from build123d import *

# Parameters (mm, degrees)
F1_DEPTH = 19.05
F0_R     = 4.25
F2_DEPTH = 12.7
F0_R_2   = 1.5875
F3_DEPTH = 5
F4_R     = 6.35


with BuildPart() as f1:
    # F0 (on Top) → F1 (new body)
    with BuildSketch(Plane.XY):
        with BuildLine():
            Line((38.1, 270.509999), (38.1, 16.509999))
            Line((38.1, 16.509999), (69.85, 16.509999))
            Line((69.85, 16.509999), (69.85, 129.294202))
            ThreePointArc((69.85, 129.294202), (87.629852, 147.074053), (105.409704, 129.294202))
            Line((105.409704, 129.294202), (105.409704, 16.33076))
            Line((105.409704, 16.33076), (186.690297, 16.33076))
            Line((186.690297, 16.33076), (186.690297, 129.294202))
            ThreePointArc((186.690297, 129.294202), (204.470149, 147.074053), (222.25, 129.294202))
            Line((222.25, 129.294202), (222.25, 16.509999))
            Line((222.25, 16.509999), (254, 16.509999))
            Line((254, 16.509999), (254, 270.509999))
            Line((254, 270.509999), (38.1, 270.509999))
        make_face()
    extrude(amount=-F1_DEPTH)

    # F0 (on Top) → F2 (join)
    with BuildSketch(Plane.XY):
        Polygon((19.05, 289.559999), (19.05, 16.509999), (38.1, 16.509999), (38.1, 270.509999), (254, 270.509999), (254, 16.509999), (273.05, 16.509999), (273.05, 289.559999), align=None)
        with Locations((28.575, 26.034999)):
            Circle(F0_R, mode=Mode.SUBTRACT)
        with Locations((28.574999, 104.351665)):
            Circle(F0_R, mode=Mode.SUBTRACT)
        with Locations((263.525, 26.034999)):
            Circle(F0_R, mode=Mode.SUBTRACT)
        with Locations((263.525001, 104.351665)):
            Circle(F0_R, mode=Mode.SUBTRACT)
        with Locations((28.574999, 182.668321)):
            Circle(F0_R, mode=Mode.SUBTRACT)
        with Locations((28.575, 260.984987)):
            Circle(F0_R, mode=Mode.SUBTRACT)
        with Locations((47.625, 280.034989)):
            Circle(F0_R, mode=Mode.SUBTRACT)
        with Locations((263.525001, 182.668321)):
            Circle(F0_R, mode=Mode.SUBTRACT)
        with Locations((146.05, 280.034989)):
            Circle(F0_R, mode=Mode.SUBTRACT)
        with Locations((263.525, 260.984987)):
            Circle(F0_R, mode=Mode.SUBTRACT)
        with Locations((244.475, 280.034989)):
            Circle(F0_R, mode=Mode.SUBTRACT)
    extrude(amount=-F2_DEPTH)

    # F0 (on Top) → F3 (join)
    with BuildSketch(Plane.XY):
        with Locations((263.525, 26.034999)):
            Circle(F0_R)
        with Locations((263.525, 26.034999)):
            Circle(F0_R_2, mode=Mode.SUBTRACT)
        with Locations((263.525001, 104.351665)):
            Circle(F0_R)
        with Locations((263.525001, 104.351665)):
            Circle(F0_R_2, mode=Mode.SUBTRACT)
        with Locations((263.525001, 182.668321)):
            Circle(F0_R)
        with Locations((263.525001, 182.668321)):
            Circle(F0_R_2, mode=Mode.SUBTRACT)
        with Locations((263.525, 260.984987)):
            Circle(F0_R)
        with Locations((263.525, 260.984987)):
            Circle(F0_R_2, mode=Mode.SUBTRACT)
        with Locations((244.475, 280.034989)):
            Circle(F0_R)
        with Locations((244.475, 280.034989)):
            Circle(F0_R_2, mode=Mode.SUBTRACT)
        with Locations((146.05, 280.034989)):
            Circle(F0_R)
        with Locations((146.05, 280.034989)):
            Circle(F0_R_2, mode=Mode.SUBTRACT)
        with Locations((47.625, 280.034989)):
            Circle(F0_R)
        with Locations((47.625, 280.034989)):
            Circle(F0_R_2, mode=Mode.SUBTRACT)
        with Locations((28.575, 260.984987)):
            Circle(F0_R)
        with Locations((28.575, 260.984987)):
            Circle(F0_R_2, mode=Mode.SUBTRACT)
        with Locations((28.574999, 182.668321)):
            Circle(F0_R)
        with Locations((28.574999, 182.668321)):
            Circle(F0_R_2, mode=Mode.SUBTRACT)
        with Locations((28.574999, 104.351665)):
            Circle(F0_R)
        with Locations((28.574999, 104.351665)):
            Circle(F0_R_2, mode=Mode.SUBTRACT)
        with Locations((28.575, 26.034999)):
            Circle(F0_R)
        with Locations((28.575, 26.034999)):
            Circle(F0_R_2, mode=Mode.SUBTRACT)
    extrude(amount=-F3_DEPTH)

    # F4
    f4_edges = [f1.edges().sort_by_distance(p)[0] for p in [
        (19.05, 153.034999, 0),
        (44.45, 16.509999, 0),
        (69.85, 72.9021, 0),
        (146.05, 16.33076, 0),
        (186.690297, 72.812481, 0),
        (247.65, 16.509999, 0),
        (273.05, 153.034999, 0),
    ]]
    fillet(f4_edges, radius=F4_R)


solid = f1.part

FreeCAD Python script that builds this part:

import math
import FreeCAD as App
import Part
import Sketcher

V = App.Vector
Q = App.Units.Quantity


def edges_at(feature, points):
    """Names of the edges that pass closest to the given points."""
    edges = feature.Shape.Edges
    near = lambda p: min(range(len(edges)), key=lambda i: edges[i].distToShape(Part.Vertex(*p))[0])
    return sorted({f"Edge{near(p) + 1}" for p in points})

doc = App.newDocument("Part")
body = doc.addObject("PartDesign::Body", "Body")

sketch1 = doc.addObject("Sketcher::SketchObject", "Sketch")
body.addObject(sketch1)
sketch1.AttachmentSupport = (doc.XY_Plane, [""])
sketch1.MapMode = "FlatFace"
sketch1.addGeometry([
    Part.LineSegment(V(38, 271, 0), V(38, 17, 0)),
    Part.LineSegment(V(38, 17, 0), V(70, 17, 0)),
    Part.LineSegment(V(70, 17, 0), V(70, 129, 0)),
    Part.ArcOfCircle(Part.Circle(V(88, 129, 0), V(0, 0, 1), 18), math.radians(0), math.radians(180)),
    Part.LineSegment(V(105, 129, 0), V(105, 16, 0)),
    Part.LineSegment(V(105, 16, 0), V(187, 16, 0)),
    Part.LineSegment(V(187, 16, 0), V(187, 129, 0)),
    Part.ArcOfCircle(Part.Circle(V(204, 129, 0), V(0, 0, 1), 18), math.radians(0), math.radians(180)),
    Part.LineSegment(V(222, 129, 0), V(222, 17, 0)),
    Part.LineSegment(V(222, 17, 0), V(254, 17, 0)),
    Part.LineSegment(V(254, 17, 0), V(254, 271, 0)),
    Part.LineSegment(V(254, 271, 0), V(38, 271, 0)),
], False)
sketch1.addConstraint([
    Sketcher.Constraint("Coincident", 0, 2, 1, 1),
    Sketcher.Constraint("Coincident", 1, 2, 2, 1),
    Sketcher.Constraint("Tangent", 2, 2, 3, 2),
    Sketcher.Constraint("Tangent", 3, 1, 4, 1),
    Sketcher.Constraint("Coincident", 4, 2, 5, 1),
    Sketcher.Constraint("Coincident", 5, 2, 6, 1),
    Sketcher.Constraint("Tangent", 6, 2, 7, 2),
    Sketcher.Constraint("Tangent", 7, 1, 8, 1),
    Sketcher.Constraint("Coincident", 8, 2, 9, 1),
    Sketcher.Constraint("Coincident", 9, 2, 10, 1),
    Sketcher.Constraint("Coincident", 10, 2, 11, 1),
    Sketcher.Constraint("Coincident", 11, 2, 0, 1),
    Sketcher.Constraint("Vertical", 0),
    Sketcher.Constraint("Horizontal", 1),
    Sketcher.Constraint("Vertical", 2),
    Sketcher.Constraint("Vertical", 4),
    Sketcher.Constraint("Horizontal", 5),
    Sketcher.Constraint("Vertical", 6),
    Sketcher.Constraint("Vertical", 8),
    Sketcher.Constraint("Horizontal", 9),
    Sketcher.Constraint("Vertical", 10),
    Sketcher.Constraint("Horizontal", 11),
    Sketcher.Constraint("Equal", 3, 7),
    Sketcher.Constraint("Horizontal", 3, 3, 7, 3),
    Sketcher.Constraint("Horizontal", 1, 2, 8, 2),
    Sketcher.Constraint("Equal", 1, 9),
    Sketcher.Constraint("DistanceY", 0, 2, 0, 1, Q("10 in")),
    Sketcher.Constraint("DistanceX", 11, 2, 11, 1, Q("8.5 in")),
    Sketcher.Constraint("DistanceX", -1, 1, 9, 2, Q("10 in")),
    Sketcher.Constraint("DistanceX", 1, 1, 1, 2, Q("1.25 in")),
    Sketcher.Constraint("DistanceY", -1, 1, 0, 2, Q("0.65 in")),
    Sketcher.Constraint("Radius", 7, 17.779851),
    Sketcher.Constraint("DistanceY", -1, 1, 3, 3, 129.294201),
    Sketcher.Constraint("DistanceY", 4, 2, 4, 1, 112.963442),
])
pad1 = doc.addObject("PartDesign::Pad", "Pad")
body.addObject(pad1)
pad1.Profile = sketch1
pad1.Length = Q("0.75 in")
pad1.Reversed = True

sketch2 = doc.addObject("Sketcher::SketchObject", "Sketch001")
body.addObject(sketch2)
sketch2.AttachmentSupport = (doc.XY_Plane, [""])
sketch2.MapMode = "FlatFace"
sketch2.addGeometry([
    Part.LineSegment(V(19.1, 289.6, 0), V(19.1, 16.5, 0)),
    Part.LineSegment(V(19.1, 16.5, 0), V(38.1, 16.5, 0)),
    Part.LineSegment(V(38.1, 16.5, 0), V(38.1, 270.5, 0)),
    Part.LineSegment(V(38.1, 270.5, 0), V(254, 270.5, 0)),
    Part.LineSegment(V(254, 270.5, 0), V(254, 16.5, 0)),
    Part.LineSegment(V(254, 16.5, 0), V(273.1, 16.5, 0)),
    Part.LineSegment(V(273.1, 16.5, 0), V(273.1, 289.6, 0)),
    Part.LineSegment(V(273.1, 289.6, 0), V(19.1, 289.6, 0)),
    Part.Circle(V(28.6, 26, 0), V(0, 0, 1), 4.2),
    Part.Circle(V(28.6, 104.4, 0), V(0, 0, 1), 4.2),
    Part.Circle(V(263.5, 26, 0), V(0, 0, 1), 4.2),
    Part.Circle(V(263.5, 104.4, 0), V(0, 0, 1), 4.2),
    Part.Circle(V(28.6, 182.7, 0), V(0, 0, 1), 4.2),
    Part.Circle(V(28.6, 261, 0), V(0, 0, 1), 4.2),
    Part.Circle(V(47.6, 280, 0), V(0, 0, 1), 4.2),
    Part.Circle(V(263.5, 182.7, 0), V(0, 0, 1), 4.2),
    Part.Circle(V(146.1, 280, 0), V(0, 0, 1), 4.2),
    Part.Circle(V(263.5, 261, 0), V(0, 0, 1), 4.2),
    Part.Circle(V(244.5, 280, 0), V(0, 0, 1), 4.2),
], False)
sketch2.addConstraint([
    Sketcher.Constraint("Coincident", 0, 2, 1, 1),
    Sketcher.Constraint("Coincident", 1, 2, 2, 1),
    Sketcher.Constraint("Coincident", 2, 2, 3, 1),
    Sketcher.Constraint("Coincident", 3, 2, 4, 1),
    Sketcher.Constraint("Coincident", 4, 2, 5, 1),
    Sketcher.Constraint("Coincident", 5, 2, 6, 1),
    Sketcher.Constraint("Coincident", 6, 2, 7, 1),
    Sketcher.Constraint("Coincident", 7, 2, 0, 1),
    Sketcher.Constraint("Vertical", 0),
    Sketcher.Constraint("Horizontal", 1),
    Sketcher.Constraint("Vertical", 2),
    Sketcher.Constraint("Horizontal", 3),
    Sketcher.Constraint("Vertical", 4),
    Sketcher.Constraint("Horizontal", 5),
    Sketcher.Constraint("Vertical", 6),
    Sketcher.Constraint("Horizontal", 7),
    Sketcher.Constraint("Equal", 8, 9),
    Sketcher.Constraint("Equal", 9, 10),
    Sketcher.Constraint("Equal", 10, 11),
    Sketcher.Constraint("Equal", 11, 12),
    Sketcher.Constraint("Equal", 12, 13),
    Sketcher.Constraint("Equal", 13, 14),
    Sketcher.Constraint("Equal", 14, 15),
    Sketcher.Constraint("Equal", 15, 16),
    Sketcher.Constraint("Equal", 16, 17),
    Sketcher.Constraint("Equal", 17, 18),
    Sketcher.Constraint("Horizontal", 8, 3, 10, 3),
    Sketcher.Constraint("Horizontal", 9, 3, 11, 3),
    Sketcher.Constraint("Horizontal", 12, 3, 15, 3),
    Sketcher.Constraint("Horizontal", 14, 3, 16, 3),
    Sketcher.Constraint("Horizontal", 13, 3, 17, 3),
    Sketcher.Constraint("Horizontal", 16, 3, 18, 3),
    Sketcher.Constraint("Horizontal", 1, 2, 4, 2),
    Sketcher.Constraint("Vertical", 8, 3, 9, 3),
    Sketcher.Constraint("Vertical", 10, 3, 11, 3),
    Sketcher.Constraint("Vertical", 9, 3, 12, 3),
    Sketcher.Constraint("Vertical", 12, 3, 13, 3),
    Sketcher.Constraint("Vertical", 11, 3, 15, 3),
    Sketcher.Constraint("Vertical", 15, 3, 17, 3),
    Sketcher.Constraint("Equal", 1, 5),
    Sketcher.Constraint("Equal", 7, 2),
    Sketcher.Constraint("DistanceX", 7, 2, 7, 1, Q("10 in")),
    Sketcher.Constraint("DistanceX", 3, 1, 3, 2, Q("8.5 in")),
    Sketcher.Constraint("DistanceX", -1, 1, 3, 2, Q("10 in")),
    Sketcher.Constraint("DistanceX", 16, 3, 6, 2, Q("5 in")),
    Sketcher.Constraint("DistanceY", 0, 2, 0, 1, Q("10.75 in")),
    Sketcher.Constraint("DistanceY", -1, 1, 6, 2, Q("11.4 in")),
    Sketcher.Constraint("DistanceX", 14, 3, 11, 3, Q("8.5 in")),
    Sketcher.Constraint("Diameter", 8, 8.5),
    Sketcher.Constraint("DistanceX", 8, 3, 10, 3, Q("9.25 in")),
    Sketcher.Constraint("DistanceY", 13, 3, 14, 3, Q("0.7500001 in")),
    Sketcher.Constraint("DistanceX", 18, 3, 17, 3, Q("0.75 in")),
    Sketcher.Constraint("DistanceX", -1, 1, 8, 3, Q("1.125 in")),
    Sketcher.Constraint("DistanceY", -1, 1, 8, 3, Q("1.025 in")),
    Sketcher.Constraint("DistanceY", -1, 1, 12, 3, 182.668321),
    Sketcher.Constraint("DistanceY", -1, 1, 14, 3, 280.034989),
    Sketcher.Constraint("DistanceY", 9, 3, 13, 3, 156.633322),
])
pad2 = doc.addObject("PartDesign::Pad", "Pad001")
body.addObject(pad2)
pad2.Profile = sketch2
pad2.Length = Q("0.5 in")
pad2.Reversed = True

sketch3 = doc.addObject("Sketcher::SketchObject", "Sketch002")
body.addObject(sketch3)
sketch3.AttachmentSupport = (doc.XY_Plane, [""])
sketch3.MapMode = "FlatFace"
sketch3.addGeometry([
    Part.Circle(V(263.5, 26, 0), V(0, 0, 1), 4.2),
    Part.Circle(V(263.5, 26, 0), V(0, 0, 1), 1.6),
    Part.Circle(V(263.5, 104.4, 0), V(0, 0, 1), 4.2),
    Part.Circle(V(263.5, 104.4, 0), V(0, 0, 1), 1.6),
    Part.Circle(V(263.5, 182.7, 0), V(0, 0, 1), 4.2),
    Part.Circle(V(263.5, 182.7, 0), V(0, 0, 1), 1.6),
    Part.Circle(V(263.5, 261, 0), V(0, 0, 1), 4.2),
    Part.Circle(V(263.5, 261, 0), V(0, 0, 1), 1.6),
    Part.Circle(V(244.5, 280, 0), V(0, 0, 1), 4.2),
    Part.Circle(V(244.5, 280, 0), V(0, 0, 1), 1.6),
    Part.Circle(V(146.1, 280, 0), V(0, 0, 1), 4.2),
    Part.Circle(V(146.1, 280, 0), V(0, 0, 1), 1.6),
    Part.Circle(V(47.6, 280, 0), V(0, 0, 1), 4.2),
    Part.Circle(V(47.6, 280, 0), V(0, 0, 1), 1.6),
    Part.Circle(V(28.6, 261, 0), V(0, 0, 1), 4.2),
    Part.Circle(V(28.6, 261, 0), V(0, 0, 1), 1.6),
    Part.Circle(V(28.6, 182.7, 0), V(0, 0, 1), 4.2),
    Part.Circle(V(28.6, 182.7, 0), V(0, 0, 1), 1.6),
    Part.Circle(V(28.6, 104.4, 0), V(0, 0, 1), 4.2),
    Part.Circle(V(28.6, 104.4, 0), V(0, 0, 1), 1.6),
    Part.Circle(V(28.6, 26, 0), V(0, 0, 1), 4.2),
    Part.Circle(V(28.6, 26, 0), V(0, 0, 1), 1.6),
], False)
sketch3.addConstraint([
    Sketcher.Constraint("Coincident", 1, 3, 0, 3),
    Sketcher.Constraint("Coincident", 3, 3, 2, 3),
    Sketcher.Constraint("Coincident", 5, 3, 4, 3),
    Sketcher.Constraint("Coincident", 7, 3, 6, 3),
    Sketcher.Constraint("Coincident", 9, 3, 8, 3),
    Sketcher.Constraint("Coincident", 11, 3, 10, 3),
    Sketcher.Constraint("Coincident", 13, 3, 12, 3),
    Sketcher.Constraint("Coincident", 15, 3, 14, 3),
    Sketcher.Constraint("Coincident", 17, 3, 16, 3),
    Sketcher.Constraint("Coincident", 19, 3, 18, 3),
    Sketcher.Constraint("Coincident", 21, 3, 20, 3),
    Sketcher.Constraint("Equal", 0, 2),
    Sketcher.Constraint("Equal", 1, 3),
    Sketcher.Constraint("Equal", 2, 4),
    Sketcher.Constraint("Equal", 3, 5),
    Sketcher.Constraint("Equal", 4, 6),
    Sketcher.Constraint("Equal", 5, 7),
    Sketcher.Constraint("Equal", 6, 8),
    Sketcher.Constraint("Equal", 7, 9),
    Sketcher.Constraint("Equal", 8, 10),
    Sketcher.Constraint("Equal", 9, 11),
    Sketcher.Constraint("Equal", 10, 12),
    Sketcher.Constraint("Equal", 11, 13),
    Sketcher.Constraint("Equal", 12, 14),
    Sketcher.Constraint("Equal", 13, 15),
    Sketcher.Constraint("Equal", 14, 16),
    Sketcher.Constraint("Equal", 15, 17),
    Sketcher.Constraint("Equal", 16, 18),
    Sketcher.Constraint("Equal", 17, 19),
    Sketcher.Constraint("Equal", 18, 20),
    Sketcher.Constraint("Equal", 19, 21),
    Sketcher.Constraint("Horizontal", 9, 3, 10, 3),
    Sketcher.Constraint("Horizontal", 11, 3, 12, 3),
    Sketcher.Constraint("Horizontal", 7, 3, 14, 3),
    Sketcher.Constraint("Horizontal", 5, 3, 16, 3),
    Sketcher.Constraint("Horizontal", 3, 3, 18, 3),
    Sketcher.Constraint("Horizontal", 1, 3, 20, 3),
    Sketcher.Constraint("Vertical", 1, 3, 2, 3),
    Sketcher.Constraint("Vertical", 3, 3, 4, 3),
    Sketcher.Constraint("Vertical", 5, 3, 6, 3),
    Sketcher.Constraint("Vertical", 15, 3, 16, 3),
    Sketcher.Constraint("Vertical", 17, 3, 18, 3),
    Sketcher.Constraint("Vertical", 19, 3, 20, 3),
    Sketcher.Constraint("Diameter", 1, Q("0.125 in")),
    Sketcher.Constraint("DistanceX", 12, 3, 6, 3, Q("8.5 in")),
    Sketcher.Constraint("DistanceX", 14, 3, 8, 3, Q("8.5 in")),
    Sketcher.Constraint("Diameter", 0, 8.5),
    Sketcher.Constraint("DistanceX", -1, 1, 10, 3, Q("5.75 in")),
    Sketcher.Constraint("DistanceX", 8, 3, 6, 3, Q("0.75 in")),
    Sketcher.Constraint("DistanceY", 6, 3, 8, 3, Q("0.7500001 in")),
    Sketcher.Constraint("DistanceX", -1, 1, 0, 3, Q("10.375 in")),
    Sketcher.Constraint("DistanceY", -1, 1, 0, 3, Q("1.025 in")),
    Sketcher.Constraint("DistanceY", -1, 1, 4, 3, 182.668321),
    Sketcher.Constraint("DistanceY", -1, 1, 8, 3, 280.034989),
    Sketcher.Constraint("DistanceY", 2, 3, 6, 3, 156.633322),
])
pad3 = doc.addObject("PartDesign::Pad", "Pad002")
body.addObject(pad3)
pad3.Profile = sketch3
pad3.Length = 5
pad3.Reversed = True
doc.recompute()

fillet = doc.addObject("PartDesign::Fillet", "Fillet")
body.addObject(fillet)
fillet.Base = (pad3, edges_at(pad3, [
    (19.05, 153.035, 0),
    (44.45, 16.51, 0),
    (69.85, 72.902, 0),
    (146.05, 16.331, 0),
    (186.69, 72.812, 0),
    (247.65, 16.51, 0),
    (273.05, 153.035, 0),
]))
fillet.Radius = Q("0.25 in")

doc.recompute()
